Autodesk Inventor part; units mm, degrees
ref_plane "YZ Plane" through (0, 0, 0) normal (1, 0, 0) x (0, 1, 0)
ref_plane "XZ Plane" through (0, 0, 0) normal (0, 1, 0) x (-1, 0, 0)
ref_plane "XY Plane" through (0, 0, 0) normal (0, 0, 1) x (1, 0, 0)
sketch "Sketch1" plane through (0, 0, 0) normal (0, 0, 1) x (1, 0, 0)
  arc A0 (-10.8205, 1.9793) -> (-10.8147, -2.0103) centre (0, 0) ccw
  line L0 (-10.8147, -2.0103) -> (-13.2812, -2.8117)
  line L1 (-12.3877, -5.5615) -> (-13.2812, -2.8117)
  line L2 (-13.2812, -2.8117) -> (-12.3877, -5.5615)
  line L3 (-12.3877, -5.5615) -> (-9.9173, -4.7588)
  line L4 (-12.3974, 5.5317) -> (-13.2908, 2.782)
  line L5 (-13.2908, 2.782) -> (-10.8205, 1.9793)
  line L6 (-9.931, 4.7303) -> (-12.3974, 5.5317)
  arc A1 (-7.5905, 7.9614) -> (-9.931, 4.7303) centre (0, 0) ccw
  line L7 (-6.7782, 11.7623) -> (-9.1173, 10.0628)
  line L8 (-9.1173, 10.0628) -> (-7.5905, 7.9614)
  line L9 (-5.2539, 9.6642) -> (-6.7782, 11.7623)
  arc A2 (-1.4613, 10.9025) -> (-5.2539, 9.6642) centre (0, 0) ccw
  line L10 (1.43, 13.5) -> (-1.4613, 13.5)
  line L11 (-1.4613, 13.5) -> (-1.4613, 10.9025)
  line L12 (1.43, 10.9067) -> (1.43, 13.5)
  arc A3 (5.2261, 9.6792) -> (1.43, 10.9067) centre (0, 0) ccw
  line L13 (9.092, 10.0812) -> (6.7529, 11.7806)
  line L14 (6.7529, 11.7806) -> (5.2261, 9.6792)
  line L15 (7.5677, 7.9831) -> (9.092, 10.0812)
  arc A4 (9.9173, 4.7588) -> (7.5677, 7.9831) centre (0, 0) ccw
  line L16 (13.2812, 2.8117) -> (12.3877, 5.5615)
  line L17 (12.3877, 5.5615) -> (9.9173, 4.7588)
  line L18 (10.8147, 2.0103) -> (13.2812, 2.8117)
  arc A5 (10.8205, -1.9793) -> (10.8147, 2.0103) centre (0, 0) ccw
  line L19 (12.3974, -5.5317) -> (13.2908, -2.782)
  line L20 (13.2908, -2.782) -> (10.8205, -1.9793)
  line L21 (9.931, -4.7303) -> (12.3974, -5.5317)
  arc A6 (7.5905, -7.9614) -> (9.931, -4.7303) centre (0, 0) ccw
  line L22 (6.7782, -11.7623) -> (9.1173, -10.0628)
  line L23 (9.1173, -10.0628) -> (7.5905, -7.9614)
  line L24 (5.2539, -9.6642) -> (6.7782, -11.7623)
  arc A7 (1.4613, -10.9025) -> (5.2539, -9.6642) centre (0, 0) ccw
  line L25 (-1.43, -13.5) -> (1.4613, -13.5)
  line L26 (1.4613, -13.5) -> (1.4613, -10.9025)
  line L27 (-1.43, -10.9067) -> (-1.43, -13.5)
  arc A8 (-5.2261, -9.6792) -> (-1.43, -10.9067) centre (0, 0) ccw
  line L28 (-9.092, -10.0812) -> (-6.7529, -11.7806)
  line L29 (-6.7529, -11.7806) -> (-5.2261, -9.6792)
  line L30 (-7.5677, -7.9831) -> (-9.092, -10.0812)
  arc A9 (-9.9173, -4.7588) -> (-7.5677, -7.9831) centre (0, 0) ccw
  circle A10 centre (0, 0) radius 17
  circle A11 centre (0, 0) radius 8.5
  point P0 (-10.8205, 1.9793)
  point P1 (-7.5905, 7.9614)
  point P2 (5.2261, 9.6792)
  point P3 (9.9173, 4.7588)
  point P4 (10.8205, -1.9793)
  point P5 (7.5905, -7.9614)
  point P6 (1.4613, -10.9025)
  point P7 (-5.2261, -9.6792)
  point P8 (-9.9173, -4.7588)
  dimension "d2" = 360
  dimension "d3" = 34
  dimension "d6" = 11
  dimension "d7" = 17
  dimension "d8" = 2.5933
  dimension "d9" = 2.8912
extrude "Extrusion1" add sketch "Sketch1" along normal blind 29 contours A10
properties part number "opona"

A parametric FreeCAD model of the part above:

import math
import FreeCAD as App
import Part
import Sketcher
Q = App.Units.Quantity

doc = App.newDocument("Part")
params = doc.addObject("Spreadsheet::Sheet", "Params")
for row, (alias, value) in enumerate([
    ("sketch1_diameter", "34 mm"),
    ("sketch1_radius", "11 mm"),
    ("pad1_length", "29 mm"),
], start=1):
    params.set(f"A{row}", alias)
    params.set(f"B{row}", "=" + value)
    params.setAlias(f"B{row}", alias)

body = doc.addObject("PartDesign::Body", "Body")

sketch1 = body.newObject("Sketcher::SketchObject", "Sketch")
sketch1.AttachmentSupport = (doc.getObject("XY_Plane"), [""])
sketch1.MapMode = "FlatFace"
sketch1.addGeometry([
    Part.Circle(App.Vector(0, 0, 0), App.Vector(0, 0, 1), 17),
    Part.ArcOfCircle(Part.Circle(App.Vector(-0.002476, 0.000223, 0), App.Vector(0, 0, 1), 10.997563), math.radians(169.632804), math.radians(190.533787)),
    Part.LineSegment(App.Vector(-10.8205, 1.9793, 0), App.Vector(-13.2908, 2.782, 0)),
    Part.LineSegment(App.Vector(-13.2908, 2.782, 0), App.Vector(-12.3974, 5.5317, 0)),
    Part.LineSegment(App.Vector(-12.3974, 5.5317, 0), App.Vector(-9.931, 4.7303, 0)),
    Part.ArcOfCircle(Part.Circle(App.Vector(0.000953, -0.000832, 0), App.Vector(0, 0, 1), 11.001241), math.radians(133.634402), math.radians(154.528986)),
    Part.LineSegment(App.Vector(-7.5905, 7.9614, 0), App.Vector(-9.1173, 10.0628, 0)),
    Part.LineSegment(App.Vector(-9.1173, 10.0628, 0), App.Vector(-6.7782, 11.7623, 0)),
    Part.LineSegment(App.Vector(-6.7782, 11.7623, 0), App.Vector(-5.2539, 9.6642, 0)),
    Part.ArcOfCircle(Part.Circle(App.Vector(0, 0, 0), App.Vector(0, 0, 1), 11.000039), math.radians(97.634054), math.radians(118.530521)),
    Part.LineSegment(App.Vector(-1.4613, 10.9025, 0), App.Vector(-1.4613, 13.5, 0)),
    Part.LineSegment(App.Vector(-1.4613, 13.5, 0), App.Vector(1.43, 13.5, 0)),
    Part.LineSegment(App.Vector(1.43, 13.5, 0), App.Vector(1.43, 10.9067, 0)),
    Part.ArcOfCircle(Part.Circle(App.Vector(-0.001066, -0.002495, 0), App.Vector(0, 0, 1), 11.002658), math.radians(61.635302), math.radians(82.526622)),
    Part.LineSegment(App.Vector(5.2261, 9.6792, 0), App.Vector(6.7529, 11.7806, 0)),
    Part.LineSegment(App.Vector(6.7529, 11.7806, 0), App.Vector(9.092, 10.0812, 0)),
    Part.LineSegment(App.Vector(9.092, 10.0812, 0), App.Vector(7.5677, 7.9831, 0)),
    Part.ArcOfCircle(Part.Circle(App.Vector(-0.001125, -0.000672, 0), App.Vector(0, 0, 1), 11.001261), math.radians(25.634565), math.radians(46.528303)),
    Part.LineSegment(App.Vector(9.9173, 4.7588, 0), App.Vector(12.3877, 5.5615, 0)),
    Part.LineSegment(App.Vector(12.3877, 5.5615, 0), App.Vector(13.2812, 2.8117, 0)),
    Part.LineSegment(App.Vector(13.2812, 2.8117, 0), App.Vector(10.8147, 2.0103, 0)),
    Part.ArcOfCircle(Part.Circle(App.Vector(0.002476, -0.000223, 0), App.Vector(0, 0, 1), 10.997563), math.radians(-10.367196), math.radians(10.533787)),
    Part.LineSegment(App.Vector(10.8205, -1.9793, 0), App.Vector(13.2908, -2.782, 0)),
    Part.LineSegment(App.Vector(13.2908, -2.782, 0), App.Vector(12.3974, -5.5317, 0)),
    Part.LineSegment(App.Vector(12.3974, -5.5317, 0), App.Vector(9.931, -4.7303, 0)),
    Part.ArcOfCircle(Part.Circle(App.Vector(-0.000953, 0.000832, 0), App.Vector(0, 0, 1), 11.001241), math.radians(-46.365598), math.radians(-25.471014)),
    Part.LineSegment(App.Vector(7.5905, -7.9614, 0), App.Vector(9.1173, -10.0628, 0)),
    Part.LineSegment(App.Vector(9.1173, -10.0628, 0), App.Vector(6.7782, -11.7623, 0)),
    Part.LineSegment(App.Vector(6.7782, -11.7623, 0), App.Vector(5.2539, -9.6642, 0)),
    Part.ArcOfCircle(Part.Circle(App.Vector(0, 0, 0), App.Vector(0, 0, 1), 11.000039), math.radians(-82.365946), math.radians(-61.469479)),
    Part.LineSegment(App.Vector(1.4613, -10.9025, 0), App.Vector(1.4613, -13.5, 0)),
    Part.LineSegment(App.Vector(1.4613, -13.5, 0), App.Vector(-1.43, -13.5, 0)),
    Part.LineSegment(App.Vector(-1.43, -13.5, 0), App.Vector(-1.43, -10.9067, 0)),
    Part.ArcOfCircle(Part.Circle(App.Vector(0.001066, 0.002495, 0), App.Vector(0, 0, 1), 11.002658), math.radians(-118.364698), math.radians(-97.473378)),
    Part.LineSegment(App.Vector(-5.2261, -9.6792, 0), App.Vector(-6.7529, -11.7806, 0)),
    Part.LineSegment(App.Vector(-6.7529, -11.7806, 0), App.Vector(-9.092, -10.0812, 0)),
    Part.LineSegment(App.Vector(-9.092, -10.0812, 0), App.Vector(-7.5677, -7.9831, 0)),
    Part.ArcOfCircle(Part.Circle(App.Vector(0.001125, 0.000672, 0), App.Vector(0, 0, 1), 11.001261), math.radians(-154.365435), math.radians(-133.471697)),
    Part.LineSegment(App.Vector(-9.9173, -4.7588, 0), App.Vector(-12.3877, -5.5615, 0)),
    Part.LineSegment(App.Vector(-12.3877, -5.5615, 0), App.Vector(-13.2812, -2.8117, 0)),
    Part.LineSegment(App.Vector(-13.2812, -2.8117, 0), App.Vector(-10.8147, -2.0103, 0)),
], False)
sketch1.addConstraint([
    Sketcher.Constraint("Coincident", 1, 1, 2, 1),
    Sketcher.Constraint("Coincident", 2, 2, 3, 1),
    Sketcher.Constraint("Coincident", 3, 2, 4, 1),
    Sketcher.Constraint("Coincident", 4, 2, 5, 2),
    Sketcher.Constraint("Coincident", 5, 1, 6, 1),
    Sketcher.Constraint("Coincident", 6, 2, 7, 1),
    Sketcher.Constraint("Coincident", 7, 2, 8, 1),
    Sketcher.Constraint("Coincident", 8, 2, 9, 2),
    Sketcher.Constraint("Coincident", 9, 1, 10, 1),
    Sketcher.Constraint("Coincident", 10, 2, 11, 1),
    Sketcher.Constraint("Coincident", 11, 2, 12, 1),
    Sketcher.Constraint("Coincident", 12, 2, 13, 2),
    Sketcher.Constraint("Coincident", 13, 1, 14, 1),
    Sketcher.Constraint("Coincident", 14, 2, 15, 1),
    Sketcher.Constraint("Coincident", 15, 2, 16, 1),
    Sketcher.Constraint("Coincident", 16, 2, 17, 2),
    Sketcher.Constraint("Coincident", 17, 1, 18, 1),
    Sketcher.Constraint("Coincident", 18, 2, 19, 1),
    Sketcher.Constraint("Coincident", 19, 2, 20, 1),
    Sketcher.Constraint("Coincident", 20, 2, 21, 2),
    Sketcher.Constraint("Coincident", 21, 1, 22, 1),
    Sketcher.Constraint("Coincident", 22, 2, 23, 1),
    Sketcher.Constraint("Coincident", 23, 2, 24, 1),
    Sketcher.Constraint("Coincident", 24, 2, 25, 2),
    Sketcher.Constraint("Coincident", 25, 1, 26, 1),
    Sketcher.Constraint("Coincident", 26, 2, 27, 1),
    Sketcher.Constraint("Coincident", 27, 2, 28, 1),
    Sketcher.Constraint("Coincident", 28, 2, 29, 2),
    Sketcher.Constraint("Coincident", 29, 1, 30, 1),
    Sketcher.Constraint("Coincident", 30, 2, 31, 1),
    Sketcher.Constraint("Coincident", 31, 2, 32, 1),
    Sketcher.Constraint("Coincident", 32, 2, 33, 2),
    Sketcher.Constraint("Coincident", 33, 1, 34, 1),
    Sketcher.Constraint("Coincident", 34, 2, 35, 1),
    Sketcher.Constraint("Coincident", 35, 2, 36, 1),
    Sketcher.Constraint("Coincident", 36, 2, 37, 2),
    Sketcher.Constraint("Coincident", 37, 1, 38, 1),
    Sketcher.Constraint("Coincident", 38, 2, 39, 1),
    Sketcher.Constraint("Coincident", 39, 2, 40, 1),
    Sketcher.Constraint("Coincident", 40, 2, 1, 2),
    Sketcher.Constraint("Vertical", 10),
    Sketcher.Constraint("Horizontal", 11),
    Sketcher.Constraint("Vertical", 12),
    Sketcher.Constraint("Vertical", 30),
    Sketcher.Constraint("Horizontal", 31),
    Sketcher.Constraint("Vertical", 32),
    Sketcher.Constraint("Coincident", 0, 3, -1, 1),
    Sketcher.Constraint("Coincident", 9, 3, -1, 1),
    Sketcher.Constraint("Coincident", 29, 3, -1, 1),
    Sketcher.Constraint("Equal", 5, 17),
    Sketcher.Constraint("Equal", 1, 21),
    Sketcher.Constraint("Equal", 17, 25),
    Sketcher.Constraint("Equal", 9, 29),
    Sketcher.Constraint("Equal", 13, 33),
    Sketcher.Constraint("Equal", 25, 37),
    Sketcher.Constraint("Symmetric", 1, 3, 21, 3, -1, 1),
    Sketcher.Constraint("Symmetric", 5, 3, 25, 3, -1, 1),
    Sketcher.Constraint("Symmetric", 13, 3, 33, 3, -1, 1),
    Sketcher.Constraint("Symmetric", 17, 3, 37, 3, -1, 1),
    Sketcher.Constraint("Symmetric", 2, 2, 22, 2, -1, 1),
    Sketcher.Constraint("Symmetric", 3, 2, 23, 2, -1, 1),
    Sketcher.Constraint("Symmetric", 6, 2, 26, 2, -1, 1),
    Sketcher.Constraint("Symmetric", 7, 2, 27, 2, -1, 1),
    Sketcher.Constraint("Symmetric", 10, 2, 30, 2, -1, 1),
    Sketcher.Constraint("Symmetric", 14, 2, 34, 2, -1, 1),
    Sketcher.Constraint("Symmetric", 15, 2, 35, 2, -1, 1),
    Sketcher.Constraint("Symmetric", 18, 2, 38, 2, -1, 1),
    Sketcher.Constraint("Symmetric", 19, 2, 39, 2, -1, 1),
    Sketcher.Constraint("Symmetric", 5, 3, 17, 3, -2),
    Sketcher.Constraint("Perpendicular", 2, 3),
    Sketcher.Constraint("Perpendicular", 3, 4),
    Sketcher.Constraint("Perpendicular", 6, 7),
    Sketcher.Constraint("Perpendicular", 7, 8),
    Sketcher.Constraint("Perpendicular", 14, 15),
    Sketcher.Constraint("Perpendicular", 15, 16),
    Sketcher.Constraint("Perpendicular", 18, 19),
    Sketcher.Constraint("Perpendicular", 19, 20),
    Sketcher.Constraint("Parallel", 4, 22),
    Sketcher.Constraint("Perpendicular", 23, 24),
    Sketcher.Constraint("Parallel", 8, 26),
    Sketcher.Constraint("Perpendicular", 27, 28),
    Sketcher.Constraint("Parallel", 16, 34),
    Sketcher.Constraint("Perpendicular", 35, 36),
    Sketcher.Constraint("Parallel", 20, 38),
    Sketcher.Constraint("Perpendicular", 39, 40),
    Sketcher.Constraint("Vertical", 13, 3, 17, 3),
    Sketcher.Constraint("Equal", 11, 31),
    Sketcher.Constraint("Equal", 2, 6),
    Sketcher.Constraint("Equal", 3, 7),
    Sketcher.Constraint("Equal", 4, 8),
    Sketcher.Constraint("Equal", 6, 14),
    Sketcher.Constraint("Equal", 7, 15),
    Sketcher.Constraint("Equal", 8, 16),
    Sketcher.Constraint("Equal", 14, 18),
    Sketcher.Constraint("Equal", 15, 19),
    Sketcher.Constraint("Equal", 16, 20),
    Sketcher.Constraint("Diameter", 0, 34.0),
    Sketcher.Constraint("Radius", 9, 11.0),
    Sketcher.Constraint("Angle", 2, Q("161.999 deg")),
    Sketcher.Constraint("Angle", 6, Q("126.0008 deg")),
    Sketcher.Constraint("Angle", 14, Q("53.9992 deg")),
    Sketcher.Constraint("Angle", 18, Q("18.0004 deg")),
    Sketcher.Constraint("DistanceX", 11, 1, 11, 2, 2.8913),
    Sketcher.Constraint("DistanceY", 12, 2, 12, 1, 2.5933),
    Sketcher.Constraint("Distance", 3, 2.8912),
    Sketcher.Constraint("Distance", 4, 2.5933),
    Sketcher.Constraint("DistanceY", -1, 1, 10, 2, 13.5),
    Sketcher.Constraint("Radius", 1, 10.9976),
    Sketcher.Constraint("Radius", 5, 11.0012),
    Sketcher.Constraint("Radius", 13, 11.0027),
    Sketcher.Constraint("DistanceX", -1, 1, 11, 2, 1.43),
    Sketcher.Constraint("DistanceY", 17, 3, 1, 1, 1.98),
    Sketcher.Constraint("DistanceY", 1, 3, 4, 2, 4.73),
    Sketcher.Constraint("DistanceX", 4, 2, 25, 3, 9.93),
    Sketcher.Constraint("DistanceX", 1, 1, 5, 1, 3.23),
    Sketcher.Constraint("DistanceX", 3, 2, 6, 2, 3.28),
])
sketch1.setExpression("Constraints[96]", "Params.sketch1_diameter")
sketch1.setExpression("Constraints[97]", "Params.sketch1_radius")
pad1 = body.newObject("PartDesign::Pad", "Pad")
pad1.Profile = sketch1
pad1.setExpression("Length", "Params.pad1_length")

doc.recompute()
